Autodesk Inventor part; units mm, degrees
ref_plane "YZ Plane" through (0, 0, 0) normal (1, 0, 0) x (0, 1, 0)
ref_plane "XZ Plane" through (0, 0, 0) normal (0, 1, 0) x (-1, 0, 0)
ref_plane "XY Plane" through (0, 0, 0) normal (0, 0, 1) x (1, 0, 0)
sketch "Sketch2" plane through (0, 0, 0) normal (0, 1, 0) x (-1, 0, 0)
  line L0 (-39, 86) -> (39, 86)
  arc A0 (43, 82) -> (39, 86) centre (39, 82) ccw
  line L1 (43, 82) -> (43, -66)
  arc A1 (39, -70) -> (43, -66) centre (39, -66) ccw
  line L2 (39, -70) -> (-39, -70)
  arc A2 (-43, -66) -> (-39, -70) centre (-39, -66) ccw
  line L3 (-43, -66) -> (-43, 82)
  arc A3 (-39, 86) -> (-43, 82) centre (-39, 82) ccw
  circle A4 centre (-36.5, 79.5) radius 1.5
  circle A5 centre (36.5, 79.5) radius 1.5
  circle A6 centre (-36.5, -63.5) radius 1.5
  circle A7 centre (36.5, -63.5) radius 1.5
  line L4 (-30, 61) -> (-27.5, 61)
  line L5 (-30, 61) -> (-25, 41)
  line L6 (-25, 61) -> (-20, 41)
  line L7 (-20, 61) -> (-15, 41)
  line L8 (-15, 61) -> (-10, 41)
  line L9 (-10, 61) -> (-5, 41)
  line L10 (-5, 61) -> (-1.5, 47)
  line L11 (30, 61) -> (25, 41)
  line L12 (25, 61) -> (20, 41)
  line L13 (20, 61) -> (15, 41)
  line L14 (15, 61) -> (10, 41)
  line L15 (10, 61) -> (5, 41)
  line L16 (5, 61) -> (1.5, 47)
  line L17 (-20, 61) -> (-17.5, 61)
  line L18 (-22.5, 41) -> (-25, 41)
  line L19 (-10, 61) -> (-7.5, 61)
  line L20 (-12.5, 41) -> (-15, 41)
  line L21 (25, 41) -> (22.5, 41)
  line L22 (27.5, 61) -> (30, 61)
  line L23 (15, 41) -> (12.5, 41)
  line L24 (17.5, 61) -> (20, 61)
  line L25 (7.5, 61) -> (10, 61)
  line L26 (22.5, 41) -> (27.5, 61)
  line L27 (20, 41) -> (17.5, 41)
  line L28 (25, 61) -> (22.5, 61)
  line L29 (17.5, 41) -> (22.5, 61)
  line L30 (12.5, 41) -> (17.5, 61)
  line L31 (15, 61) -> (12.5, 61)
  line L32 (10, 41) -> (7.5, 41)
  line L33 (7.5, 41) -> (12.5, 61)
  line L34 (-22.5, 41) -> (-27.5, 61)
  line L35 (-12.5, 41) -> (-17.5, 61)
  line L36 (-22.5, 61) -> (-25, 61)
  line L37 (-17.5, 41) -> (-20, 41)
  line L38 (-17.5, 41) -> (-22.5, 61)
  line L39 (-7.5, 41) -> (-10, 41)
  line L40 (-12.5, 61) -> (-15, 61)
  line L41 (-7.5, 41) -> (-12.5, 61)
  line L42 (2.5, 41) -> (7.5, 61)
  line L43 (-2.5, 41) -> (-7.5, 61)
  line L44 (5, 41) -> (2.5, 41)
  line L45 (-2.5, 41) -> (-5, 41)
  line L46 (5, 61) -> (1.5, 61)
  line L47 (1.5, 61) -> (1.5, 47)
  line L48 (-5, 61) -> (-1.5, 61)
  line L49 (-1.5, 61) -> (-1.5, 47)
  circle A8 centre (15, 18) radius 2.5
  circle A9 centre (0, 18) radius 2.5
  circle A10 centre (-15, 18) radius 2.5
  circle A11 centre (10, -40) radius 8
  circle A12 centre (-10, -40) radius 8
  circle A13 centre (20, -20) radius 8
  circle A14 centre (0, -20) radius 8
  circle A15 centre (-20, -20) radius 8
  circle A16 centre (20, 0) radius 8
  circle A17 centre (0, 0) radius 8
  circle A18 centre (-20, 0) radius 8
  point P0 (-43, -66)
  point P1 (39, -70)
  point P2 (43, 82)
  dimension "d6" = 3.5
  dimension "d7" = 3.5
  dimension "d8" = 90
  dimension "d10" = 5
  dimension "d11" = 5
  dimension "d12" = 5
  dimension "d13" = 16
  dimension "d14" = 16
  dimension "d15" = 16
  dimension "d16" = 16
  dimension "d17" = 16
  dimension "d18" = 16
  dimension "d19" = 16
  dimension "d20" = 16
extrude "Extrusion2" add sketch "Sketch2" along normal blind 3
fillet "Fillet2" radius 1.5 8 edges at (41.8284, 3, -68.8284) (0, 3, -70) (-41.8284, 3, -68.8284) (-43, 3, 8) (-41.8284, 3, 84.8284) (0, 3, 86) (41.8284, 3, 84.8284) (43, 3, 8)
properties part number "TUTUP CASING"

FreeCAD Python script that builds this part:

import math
import FreeCAD as App
import Part
import Sketcher

V = App.Vector
Q = App.Units.Quantity


def edges_at(feature, points):
    """Names of the edges that pass closest to the given points."""
    edges = feature.Shape.Edges
    near = lambda p: min(range(len(edges)), key=lambda i: edges[i].distToShape(Part.Vertex(*p))[0])
    return sorted({f"Edge{near(p) + 1}" for p in points})

doc = App.newDocument("Part")
params = doc.addObject("Spreadsheet::Sheet", "Params")
for row, (alias, value) in enumerate([
    ("sketch1_diameter", "16 mm"),
    ("sketch1_diameter2", "5 mm"),
    ("sketch1_diameter3", "3 mm"),
    ("sketch1_width", "3.5 mm"),
    ("sketch1_radius", "4 mm"),
    ("pad1_length", "3 mm"),
    ("fillet_radius", "1.5 mm"),
], start=1):
    params.set(f"A{row}", alias)
    params.set(f"B{row}", "=" + value)
    params.setAlias(f"B{row}", alias)

body = doc.addObject("PartDesign::Body", "Body")

# Sketch on XZ plane
sketch1 = body.newObject("Sketcher::SketchObject", "Sketch")
sketch1.AttachmentSupport = (doc.getObject("XZ_Plane"), [""])
sketch1.MapMode = "FlatFace"
sketch1.addGeometry(Part.LineSegment(V(-39, 86, 0), V(39, 86, 0)), False)
sketch1.addGeometry(Part.ArcOfCircle(Part.Circle(V(39, 82, 0), V(0, 0, 1), 4), math.radians(0), math.radians(90)), False)
sketch1.addGeometry(Part.LineSegment(V(43, 82, 0), V(43, -66, 0)), False)
sketch1.addGeometry(Part.ArcOfCircle(Part.Circle(V(39, -66, 0), V(0, 0, 1), 4), math.radians(-90), math.radians(0)), False)
sketch1.addGeometry(Part.LineSegment(V(39, -70, 0), V(-39, -70, 0)), False)
sketch1.addGeometry(Part.ArcOfCircle(Part.Circle(V(-39, -66, 0), V(0, 0, 1), 4), math.radians(180), math.radians(270)), False)
sketch1.addGeometry(Part.LineSegment(V(-43, -66, 0), V(-43, 82, 0)), False)
sketch1.addGeometry(Part.ArcOfCircle(Part.Circle(V(-39, 82, 0), V(0, 0, 1), 4), math.radians(90), math.radians(180)), False)
sketch1.addGeometry(Part.Circle(V(36.5, -63.5, 0), V(0, 0, 1), 1.5), False)
sketch1.addGeometry(Part.Circle(V(10, -40, 0), V(0, 0, 1), 8), False)
sketch1.addGeometry(Part.Circle(V(20, -20, 0), V(0, 0, 1), 8), False)
sketch1.addGeometry(Part.Circle(V(20, 0, 0), V(0, 0, 1), 8), False)
sketch1.addGeometry(Part.Circle(V(-10, -40, 0), V(0, 0, 1), 8), False)
sketch1.addGeometry(Part.Circle(V(-36.5, -63.5, 0), V(0, 0, 1), 1.5), False)
sketch1.addGeometry(Part.Circle(V(0, -20, 0), V(0, 0, 1), 8), False)
sketch1.addGeometry(Part.Circle(V(-20, -20, 0), V(0, 0, 1), 8), False)
sketch1.addGeometry(Part.Circle(V(0, 0, 0), V(0, 0, 1), 8), False)
sketch1.addGeometry(Part.Circle(V(-20, 0, 0), V(0, 0, 1), 8), False)
sketch1.addGeometry(Part.Circle(V(15, 18, 0), V(0, 0, 1), 2.5), False)
sketch1.addGeometry(Part.LineSegment(V(25, 41, 0), V(30, 61, 0)), False)
sketch1.addGeometry(Part.LineSegment(V(30, 61, 0), V(27.5, 61, 0)), False)
sketch1.addGeometry(Part.LineSegment(V(27.5, 61, 0), V(22.5, 41, 0)), False)
sketch1.addGeometry(Part.LineSegment(V(22.5, 41, 0), V(25, 41, 0)), False)
sketch1.addGeometry(Part.Circle(V(36.5, 79.5, 0), V(0, 0, 1), 1.5), False)
sketch1.addGeometry(Part.LineSegment(V(20, 41, 0), V(25, 61, 0)), False)
sketch1.addGeometry(Part.LineSegment(V(25, 61, 0), V(22.5, 61, 0)), False)
sketch1.addGeometry(Part.LineSegment(V(22.5, 61, 0), V(17.5, 41, 0)), False)
sketch1.addGeometry(Part.LineSegment(V(17.5, 41, 0), V(20, 41, 0)), False)
sketch1.addGeometry(Part.LineSegment(V(15, 41, 0), V(20, 61, 0)), False)
sketch1.addGeometry(Part.LineSegment(V(20, 61, 0), V(17.5, 61, 0)), False)
sketch1.addGeometry(Part.LineSegment(V(17.5, 61, 0), V(12.5, 41, 0)), False)
sketch1.addGeometry(Part.LineSegment(V(12.5, 41, 0), V(15, 41, 0)), False)
sketch1.addGeometry(Part.LineSegment(V(10, 41, 0), V(15, 61, 0)), False)
sketch1.addGeometry(Part.LineSegment(V(15, 61, 0), V(12.5, 61, 0)), False)
sketch1.addGeometry(Part.LineSegment(V(12.5, 61, 0), V(7.5, 41, 0)), False)
sketch1.addGeometry(Part.LineSegment(V(7.5, 41, 0), V(10, 41, 0)), False)
sketch1.addGeometry(Part.LineSegment(V(5, 41, 0), V(10, 61, 0)), False)
sketch1.addGeometry(Part.LineSegment(V(10, 61, 0), V(7.5, 61, 0)), False)
sketch1.addGeometry(Part.LineSegment(V(7.5, 61, 0), V(2.5, 41, 0)), False)
sketch1.addGeometry(Part.LineSegment(V(2.5, 41, 0), V(5, 41, 0)), False)
sketch1.addGeometry(Part.LineSegment(V(1.5, 47, 0), V(5, 61, 0)), False)
sketch1.addGeometry(Part.LineSegment(V(5, 61, 0), V(1.5, 61, 0)), False)
sketch1.addGeometry(Part.LineSegment(V(1.5, 61, 0), V(1.5, 47, 0)), False)
sketch1.addGeometry(Part.Circle(V(0, 18, 0), V(0, 0, 1), 2.5), False)
sketch1.addGeometry(Part.Circle(V(-15, 18, 0), V(0, 0, 1), 2.5), False)
sketch1.addGeometry(Part.LineSegment(V(-1.5, 61, 0), V(-5, 61, 0)), False)
sketch1.addGeometry(Part.LineSegment(V(-5, 61, 0), V(-1.5, 47, 0)), False)
sketch1.addGeometry(Part.LineSegment(V(-1.5, 47, 0), V(-1.5, 61, 0)), False)
sketch1.addGeometry(Part.LineSegment(V(-7.5, 61, 0), V(-10, 61, 0)), False)
sketch1.addGeometry(Part.LineSegment(V(-10, 61, 0), V(-5, 41, 0)), False)
sketch1.addGeometry(Part.LineSegment(V(-5, 41, 0), V(-2.5, 41, 0)), False)
sketch1.addGeometry(Part.LineSegment(V(-2.5, 41, 0), V(-7.5, 61, 0)), False)
sketch1.addGeometry(Part.LineSegment(V(-12.5, 61, 0), V(-15, 61, 0)), False)
sketch1.addGeometry(Part.LineSegment(V(-15, 61, 0), V(-10, 41, 0)), False)
sketch1.addGeometry(Part.LineSegment(V(-10, 41, 0), V(-7.5, 41, 0)), False)
sketch1.addGeometry(Part.LineSegment(V(-7.5, 41, 0), V(-12.5, 61, 0)), False)
sketch1.addGeometry(Part.LineSegment(V(-17.5, 61, 0), V(-20, 61, 0)), False)
sketch1.addGeometry(Part.LineSegment(V(-20, 61, 0), V(-15, 41, 0)), False)
sketch1.addGeometry(Part.LineSegment(V(-15, 41, 0), V(-12.5, 41, 0)), False)
sketch1.addGeometry(Part.LineSegment(V(-12.5, 41, 0), V(-17.5, 61, 0)), False)
sketch1.addGeometry(Part.LineSegment(V(-22.5, 61, 0), V(-25, 61, 0)), False)
sketch1.addGeometry(Part.LineSegment(V(-25, 61, 0), V(-20, 41, 0)), False)
sketch1.addGeometry(Part.LineSegment(V(-20, 41, 0), V(-17.5, 41, 0)), False)
sketch1.addGeometry(Part.LineSegment(V(-17.5, 41, 0), V(-22.5, 61, 0)), False)
sketch1.addGeometry(Part.LineSegment(V(-27.5, 61, 0), V(-30, 61, 0)), False)
sketch1.addGeometry(Part.LineSegment(V(-30, 61, 0), V(-25, 41, 0)), False)
sketch1.addGeometry(Part.LineSegment(V(-25, 41, 0), V(-22.5, 41, 0)), False)
sketch1.addGeometry(Part.LineSegment(V(-22.5, 41, 0), V(-27.5, 61, 0)), False)
sketch1.addGeometry(Part.Circle(V(-36.5, 79.5, 0), V(0, 0, 1), 1.5), False)
sketch1.addConstraint(Sketcher.Constraint("Tangent", 0, 2, 1, 2))
sketch1.addConstraint(Sketcher.Constraint("Tangent", 1, 1, 2, 1))
sketch1.addConstraint(Sketcher.Constraint("Tangent", 2, 2, 3, 2))
sketch1.addConstraint(Sketcher.Constraint("Tangent", 3, 1, 4, 1))
sketch1.addConstraint(Sketcher.Constraint("Tangent", 4, 2, 5, 2))
sketch1.addConstraint(Sketcher.Constraint("Tangent", 5, 1, 6, 1))
sketch1.addConstraint(Sketcher.Constraint("Tangent", 6, 2, 7, 2))
sketch1.addConstraint(Sketcher.Constraint("Tangent", 7, 1, 0, 1))
sketch1.addConstraint(Sketcher.Constraint("Coincident", 19, 2, 20, 1))
sketch1.addConstraint(Sketcher.Constraint("Coincident", 20, 2, 21, 1))
sketch1.addConstraint(Sketcher.Constraint("Coincident", 21, 2, 22, 1))
sketch1.addConstraint(Sketcher.Constraint("Coincident", 22, 2, 19, 1))
sketch1.addConstraint(Sketcher.Constraint("Coincident", 24, 2, 25, 1))
sketch1.addConstraint(Sketcher.Constraint("Coincident", 25, 2, 26, 1))
sketch1.addConstraint(Sketcher.Constraint("Coincident", 26, 2, 27, 1))
sketch1.addConstraint(Sketcher.Constraint("Coincident", 27, 2, 24, 1))
sketch1.addConstraint(Sketcher.Constraint("Coincident", 28, 2, 29, 1))
sketch1.addConstraint(Sketcher.Constraint("Coincident", 29, 2, 30, 1))
sketch1.addConstraint(Sketcher.Constraint("Coincident", 30, 2, 31, 1))
sketch1.addConstraint(Sketcher.Constraint("Coincident", 31, 2, 28, 1))
sketch1.addConstraint(Sketcher.Constraint("Coincident", 32, 2, 33, 1))
sketch1.addConstraint(Sketcher.Constraint("Coincident", 33, 2, 34, 1))
sketch1.addConstraint(Sketcher.Constraint("Coincident", 34, 2, 35, 1))
sketch1.addConstraint(Sketcher.Constraint("Coincident", 35, 2, 32, 1))
sketch1.addConstraint(Sketcher.Constraint("Coincident", 36, 2, 37, 1))
sketch1.addConstraint(Sketcher.Constraint("Coincident", 37, 2, 38, 1))
sketch1.addConstraint(Sketcher.Constraint("Coincident", 38, 2, 39, 1))
sketch1.addConstraint(Sketcher.Constraint("Coincident", 39, 2, 36, 1))
sketch1.addConstraint(Sketcher.Constraint("Coincident", 40, 2, 41, 1))
sketch1.addConstraint(Sketcher.Constraint("Coincident", 41, 2, 42, 1))
sketch1.addConstraint(Sketcher.Constraint("Coincident", 42, 2, 40, 1))
sketch1.addConstraint(Sketcher.Constraint("Coincident", 45, 2, 46, 1))
sketch1.addConstraint(Sketcher.Constraint("Coincident", 46, 2, 47, 1))
sketch1.addConstraint(Sketcher.Constraint("Coincident", 47, 2, 45, 1))
sketch1.addConstraint(Sketcher.Constraint("Coincident", 48, 2, 49, 1))
sketch1.addConstraint(Sketcher.Constraint("Coincident", 49, 2, 50, 1))
sketch1.addConstraint(Sketcher.Constraint("Coincident", 50, 2, 51, 1))
sketch1.addConstraint(Sketcher.Constraint("Coincident", 51, 2, 48, 1))
sketch1.addConstraint(Sketcher.Constraint("Coincident", 52, 2, 53, 1))
sketch1.addConstraint(Sketcher.Constraint("Coincident", 53, 2, 54, 1))
sketch1.addConstraint(Sketcher.Constraint("Coincident", 54, 2, 55, 1))
sketch1.addConstraint(Sketcher.Constraint("Coincident", 55, 2, 52, 1))
sketch1.addConstraint(Sketcher.Constraint("Coincident", 56, 2, 57, 1))
sketch1.addConstraint(Sketcher.Constraint("Coincident", 57, 2, 58, 1))
sketch1.addConstraint(Sketcher.Constraint("Coincident", 58, 2, 59, 1))
sketch1.addConstraint(Sketcher.Constraint("Coincident", 59, 2, 56, 1))
sketch1.addConstraint(Sketcher.Constraint("Coincident", 60, 2, 61, 1))
sketch1.addConstraint(Sketcher.Constraint("Coincident", 61, 2, 62, 1))
sketch1.addConstraint(Sketcher.Constraint("Coincident", 62, 2, 63, 1))
sketch1.addConstraint(Sketcher.Constraint("Coincident", 63, 2, 60, 1))
sketch1.addConstraint(Sketcher.Constraint("Coincident", 64, 2, 65, 1))
sketch1.addConstraint(Sketcher.Constraint("Coincident", 65, 2, 66, 1))
sketch1.addConstraint(Sketcher.Constraint("Coincident", 66, 2, 67, 1))
sketch1.addConstraint(Sketcher.Constraint("Coincident", 67, 2, 64, 1))
sketch1.addConstraint(Sketcher.Constraint("Horizontal", 0))
sketch1.addConstraint(Sketcher.Constraint("Vertical", 2))
sketch1.addConstraint(Sketcher.Constraint("Horizontal", 4))
sketch1.addConstraint(Sketcher.Constraint("Vertical", 6))
sketch1.addConstraint(Sketcher.Constraint("Horizontal", 20))
sketch1.addConstraint(Sketcher.Constraint("Horizontal", 22))
sketch1.addConstraint(Sketcher.Constraint("Horizontal", 25))
sketch1.addConstraint(Sketcher.Constraint("Horizontal", 27))
sketch1.addConstraint(Sketcher.Constraint("Horizontal", 29))
sketch1.addConstraint(Sketcher.Constraint("Horizontal", 31))
sketch1.addConstraint(Sketcher.Constraint("Horizontal", 33))
sketch1.addConstraint(Sketcher.Constraint("Horizontal", 35))
sketch1.addConstraint(Sketcher.Constraint("Horizontal", 37))
sketch1.addConstraint(Sketcher.Constraint("Horizontal", 39))
sketch1.addConstraint(Sketcher.Constraint("Horizontal", 41))
sketch1.addConstraint(Sketcher.Constraint("Vertical", 42))
sketch1.addConstraint(Sketcher.Constraint("Horizontal", 45))
sketch1.addConstraint(Sketcher.Constraint("Vertical", 47))
sketch1.addConstraint(Sketcher.Constraint("Horizontal", 48))
sketch1.addConstraint(Sketcher.Constraint("Horizontal", 50))
sketch1.addConstraint(Sketcher.Constraint("Horizontal", 52))
sketch1.addConstraint(Sketcher.Constraint("Horizontal", 54))
sketch1.addConstraint(Sketcher.Constraint("Horizontal", 56))
sketch1.addConstraint(Sketcher.Constraint("Horizontal", 58))
sketch1.addConstraint(Sketcher.Constraint("Horizontal", 60))
sketch1.addConstraint(Sketcher.Constraint("Horizontal", 62))
sketch1.addConstraint(Sketcher.Constraint("Horizontal", 64))
sketch1.addConstraint(Sketcher.Constraint("Horizontal", 66))
sketch1.addConstraint(Sketcher.Constraint("Coincident", 16, 3, -1, 1))
sketch1.addConstraint(Sketcher.Constraint("Equal", 1, 3))
sketch1.addConstraint(Sketcher.Constraint("Equal", 3, 5))
sketch1.addConstraint(Sketcher.Constraint("Equal", 5, 7))
sketch1.addConstraint(Sketcher.Constraint("Equal", 9, 10))
sketch1.addConstraint(Sketcher.Constraint("Equal", 10, 11))
sketch1.addConstraint(Sketcher.Constraint("Equal", 11, 12))
sketch1.addConstraint(Sketcher.Constraint("Equal", 8, 13))
sketch1.addConstraint(Sketcher.Constraint("Equal", 12, 14))
sketch1.addConstraint(Sketcher.Constraint("Equal", 14, 15))
sketch1.addConstraint(Sketcher.Constraint("Equal", 15, 16))
sketch1.addConstraint(Sketcher.Constraint("Equal", 16, 17))
sketch1.addConstraint(Sketcher.Constraint("Equal", 13, 23))
sketch1.addConstraint(Sketcher.Constraint("Equal", 18, 43))
sketch1.addConstraint(Sketcher.Constraint("Equal", 43, 44))
sketch1.addConstraint(Sketcher.Constraint("Equal", 23, 68))
sketch1.addConstraint(Sketcher.Constraint("Symmetric", 11, 3, 17, 3, -1, 1))
sketch1.addConstraint(Sketcher.Constraint("Symmetric", 9, 3, 12, 3, -2))
sketch1.addConstraint(Sketcher.Constraint("Symmetric", 8, 3, 13, 3, -2))
sketch1.addConstraint(Sketcher.Constraint("Symmetric", 10, 3, 15, 3, -2))
sketch1.addConstraint(Sketcher.Constraint("Symmetric", 18, 3, 44, 3, -2))
sketch1.addConstraint(Sketcher.Constraint("Symmetric", 23, 3, 68, 3, -2))
sketch1.addConstraint(Sketcher.Constraint("Symmetric", 40, 2, 45, 2, -2))
sketch1.addConstraint(Sketcher.Constraint("Symmetric", 42, 2, 46, 2, -2))
sketch1.addConstraint(Sketcher.Constraint("Symmetric", 36, 2, 48, 2, -2))
sketch1.addConstraint(Sketcher.Constraint("Symmetric", 39, 2, 49, 2, -2))
sketch1.addConstraint(Sketcher.Constraint("Symmetric", 32, 2, 52, 2, -2))
sketch1.addConstraint(Sketcher.Constraint("Symmetric", 35, 2, 53, 2, -2))
sketch1.addConstraint(Sketcher.Constraint("Symmetric", 28, 2, 56, 2, -2))
sketch1.addConstraint(Sketcher.Constraint("Symmetric", 31, 2, 57, 2, -2))
sketch1.addConstraint(Sketcher.Constraint("Symmetric", 24, 2, 60, 2, -2))
sketch1.addConstraint(Sketcher.Constraint("Symmetric", 27, 2, 61, 2, -2))
sketch1.addConstraint(Sketcher.Constraint("Symmetric", 19, 2, 64, 2, -2))
sketch1.addConstraint(Sketcher.Constraint("Symmetric", 22, 2, 65, 2, -2))
sketch1.addConstraint(Sketcher.Constraint("PointOnObject", 11, 3, -1))
sketch1.addConstraint(Sketcher.Constraint("PointOnObject", 14, 3, -2))
sketch1.addConstraint(Sketcher.Constraint("PointOnObject", 43, 3, -2))
sketch1.addConstraint(Sketcher.Constraint("Parallel", 19, 21))
sketch1.addConstraint(Sketcher.Constraint("Parallel", 21, 24))
sketch1.addConstraint(Sketcher.Constraint("Parallel", 24, 26))
sketch1.addConstraint(Sketcher.Constraint("Parallel", 26, 28))
sketch1.addConstraint(Sketcher.Constraint("Parallel", 28, 30))
sketch1.addConstraint(Sketcher.Constraint("Parallel", 30, 32))
sketch1.addConstraint(Sketcher.Constraint("Parallel", 32, 34))
sketch1.addConstraint(Sketcher.Constraint("Parallel", 34, 36))
sketch1.addConstraint(Sketcher.Constraint("Parallel", 36, 38))
sketch1.addConstraint(Sketcher.Constraint("Parallel", 38, 40))
sketch1.addConstraint(Sketcher.Constraint("Parallel", 49, 51))
sketch1.addConstraint(Sketcher.Constraint("Parallel", 53, 55))
sketch1.addConstraint(Sketcher.Constraint("Parallel", 57, 59))
sketch1.addConstraint(Sketcher.Constraint("Parallel", 61, 63))
sketch1.addConstraint(Sketcher.Constraint("Parallel", 65, 67))
sketch1.addConstraint(Sketcher.Constraint("Horizontal", 10, 3, 14, 3))
sketch1.addConstraint(Sketcher.Constraint("Horizontal", 18, 3, 43, 3))
sketch1.addConstraint(Sketcher.Constraint("Horizontal", 20, 2, 24, 2))
sketch1.addConstraint(Sketcher.Constraint("Horizontal", 22, 2, 26, 2))
sketch1.addConstraint(Sketcher.Constraint("Horizontal", 25, 2, 28, 2))
sketch1.addConstraint(Sketcher.Constraint("Horizontal", 27, 2, 30, 2))
sketch1.addConstraint(Sketcher.Constraint("Horizontal", 29, 2, 32, 2))
sketch1.addConstraint(Sketcher.Constraint("Horizontal", 31, 2, 34, 2))
sketch1.addConstraint(Sketcher.Constraint("Horizontal", 33, 2, 36, 2))
sketch1.addConstraint(Sketcher.Constraint("Horizontal", 35, 2, 38, 2))
sketch1.addConstraint(Sketcher.Constraint("Horizontal", 37, 2, 40, 2))
sketch1.addConstraint(Sketcher.Constraint("Vertical", 10, 3, 11, 3))
sketch1.addConstraint(Sketcher.Constraint("Vertical", 8, 3, 23, 3))
sketch1.addConstraint(Sketcher.Constraint("Vertical", 22, 2, 24, 2))
sketch1.addConstraint(Sketcher.Constraint("Vertical", 21, 2, 25, 2))
sketch1.addConstraint(Sketcher.Constraint("Vertical", 11, 3, 27, 2))
sketch1.addConstraint(Sketcher.Constraint("Vertical", 27, 2, 28, 2))
sketch1.addConstraint(Sketcher.Constraint("Vertical", 26, 2, 29, 2))
sketch1.addConstraint(Sketcher.Constraint("Vertical", 18, 3, 31, 2))
sketch1.addConstraint(Sketcher.Constraint("Vertical", 31, 2, 32, 2))
sketch1.addConstraint(Sketcher.Constraint("Vertical", 30, 2, 33, 2))
sketch1.addConstraint(Sketcher.Constraint("Vertical", 9, 3, 35, 2))
sketch1.addConstraint(Sketcher.Constraint("Vertical", 35, 2, 36, 2))
sketch1.addConstraint(Sketcher.Constraint("Vertical", 34, 2, 37, 2))
sketch1.addConstraint(Sketcher.Constraint("Vertical", 39, 2, 40, 2))
sketch1.addConstraint(Sketcher.Constraint("Vertical", 51, 2, 54, 2))
sketch1.addConstraint(Sketcher.Constraint("Vertical", 55, 2, 58, 2))
sketch1.addConstraint(Sketcher.Constraint("Vertical", 59, 2, 62, 2))
sketch1.addConstraint(Sketcher.Constraint("Vertical", 63, 2, 66, 2))
sketch1.addConstraint(Sketcher.Constraint("Equal", 39, 48))
sketch1.addConstraint(Sketcher.Constraint("Diameter", 9, Q("16 mm")))
sketch1.addConstraint(Sketcher.Constraint("Diameter", 18, Q("5 mm")))
sketch1.addConstraint(Sketcher.Constraint("Diameter", 8, Q("3 mm")))
sketch1.addConstraint(Sketcher.Constraint("DistanceX", 41, 2, 41, 1, Q("3.5 mm")))
sketch1.addConstraint(Sketcher.Constraint("DistanceX", -1, 1, 39, 2, Q("5 mm")))
sketch1.addConstraint(Sketcher.Constraint("Radius", 1, Q("4 mm")))
sketch1.addConstraint(Sketcher.Constraint("DistanceX", 0, 1, 0, 2, Q("78 mm")))
sketch1.addConstraint(Sketcher.Constraint("DistanceY", 2, 2, 2, 1, Q("148 mm")))
sketch1.addConstraint(Sketcher.Constraint("DistanceY", 42, 2, 42, 1, Q("14 mm")))
sketch1.addConstraint(Sketcher.Constraint("DistanceX", 20, 2, 20, 1, Q("2.5 mm")))
sketch1.addConstraint(Sketcher.Constraint("DistanceX", -1, 1, 1, 3, Q("39 mm")))
sketch1.addConstraint(Sketcher.Constraint("DistanceY", -1, 1, 1, 3, Q("82 mm")))
sketch1.addConstraint(Sketcher.Constraint("DistanceX", -1, 1, 9, 3, Q("10 mm")))
sketch1.addConstraint(Sketcher.Constraint("DistanceY", 9, 3, -1, 1, Q("40 mm")))
sketch1.addConstraint(Sketcher.Constraint("DistanceY", 10, 3, -1, 1, Q("20 mm")))
sketch1.addConstraint(Sketcher.Constraint("DistanceY", -1, 1, 18, 3, Q("18 mm")))
sketch1.addConstraint(Sketcher.Constraint("DistanceY", -1, 1, 19, 2, Q("61 mm")))
sketch1.addConstraint(Sketcher.Constraint("DistanceX", -1, 1, 8, 3, Q("36.5 mm")))
sketch1.addConstraint(Sketcher.Constraint("DistanceY", 8, 3, -1, 1, Q("63.5 mm")))
sketch1.addConstraint(Sketcher.Constraint("DistanceY", -1, 1, 23, 3, Q("79.5 mm")))
sketch1.setExpression("Constraints[164]", "Params.sketch1_diameter")
sketch1.setExpression("Constraints[165]", "Params.sketch1_diameter2")
sketch1.setExpression("Constraints[166]", "Params.sketch1_diameter3")
sketch1.setExpression("Constraints[167]", "Params.sketch1_width")
sketch1.setExpression("Constraints[169]", "Params.sketch1_radius")
pad1 = body.newObject("PartDesign::Pad", "Pad")
pad1.Profile = sketch1
pad1.setExpression("Length", "Params.pad1_length")
pad1.Reversed = True
doc.recompute()

fillet = body.newObject("PartDesign::Fillet", "Fillet")
fillet.Base = (pad1, edges_at(pad1, [
    (41.828, 3, -68.828),
    (0, 3, -70),
    (-41.828, 3, -68.828),
    (-43, 3, 8),
    (-41.828, 3, 84.828),
    (0, 3, 86),
    (41.828, 3, 84.828),
    (43, 3, 8),
]))
fillet.setExpression("Radius", "Params.fillet_radius")

doc.recompute()
